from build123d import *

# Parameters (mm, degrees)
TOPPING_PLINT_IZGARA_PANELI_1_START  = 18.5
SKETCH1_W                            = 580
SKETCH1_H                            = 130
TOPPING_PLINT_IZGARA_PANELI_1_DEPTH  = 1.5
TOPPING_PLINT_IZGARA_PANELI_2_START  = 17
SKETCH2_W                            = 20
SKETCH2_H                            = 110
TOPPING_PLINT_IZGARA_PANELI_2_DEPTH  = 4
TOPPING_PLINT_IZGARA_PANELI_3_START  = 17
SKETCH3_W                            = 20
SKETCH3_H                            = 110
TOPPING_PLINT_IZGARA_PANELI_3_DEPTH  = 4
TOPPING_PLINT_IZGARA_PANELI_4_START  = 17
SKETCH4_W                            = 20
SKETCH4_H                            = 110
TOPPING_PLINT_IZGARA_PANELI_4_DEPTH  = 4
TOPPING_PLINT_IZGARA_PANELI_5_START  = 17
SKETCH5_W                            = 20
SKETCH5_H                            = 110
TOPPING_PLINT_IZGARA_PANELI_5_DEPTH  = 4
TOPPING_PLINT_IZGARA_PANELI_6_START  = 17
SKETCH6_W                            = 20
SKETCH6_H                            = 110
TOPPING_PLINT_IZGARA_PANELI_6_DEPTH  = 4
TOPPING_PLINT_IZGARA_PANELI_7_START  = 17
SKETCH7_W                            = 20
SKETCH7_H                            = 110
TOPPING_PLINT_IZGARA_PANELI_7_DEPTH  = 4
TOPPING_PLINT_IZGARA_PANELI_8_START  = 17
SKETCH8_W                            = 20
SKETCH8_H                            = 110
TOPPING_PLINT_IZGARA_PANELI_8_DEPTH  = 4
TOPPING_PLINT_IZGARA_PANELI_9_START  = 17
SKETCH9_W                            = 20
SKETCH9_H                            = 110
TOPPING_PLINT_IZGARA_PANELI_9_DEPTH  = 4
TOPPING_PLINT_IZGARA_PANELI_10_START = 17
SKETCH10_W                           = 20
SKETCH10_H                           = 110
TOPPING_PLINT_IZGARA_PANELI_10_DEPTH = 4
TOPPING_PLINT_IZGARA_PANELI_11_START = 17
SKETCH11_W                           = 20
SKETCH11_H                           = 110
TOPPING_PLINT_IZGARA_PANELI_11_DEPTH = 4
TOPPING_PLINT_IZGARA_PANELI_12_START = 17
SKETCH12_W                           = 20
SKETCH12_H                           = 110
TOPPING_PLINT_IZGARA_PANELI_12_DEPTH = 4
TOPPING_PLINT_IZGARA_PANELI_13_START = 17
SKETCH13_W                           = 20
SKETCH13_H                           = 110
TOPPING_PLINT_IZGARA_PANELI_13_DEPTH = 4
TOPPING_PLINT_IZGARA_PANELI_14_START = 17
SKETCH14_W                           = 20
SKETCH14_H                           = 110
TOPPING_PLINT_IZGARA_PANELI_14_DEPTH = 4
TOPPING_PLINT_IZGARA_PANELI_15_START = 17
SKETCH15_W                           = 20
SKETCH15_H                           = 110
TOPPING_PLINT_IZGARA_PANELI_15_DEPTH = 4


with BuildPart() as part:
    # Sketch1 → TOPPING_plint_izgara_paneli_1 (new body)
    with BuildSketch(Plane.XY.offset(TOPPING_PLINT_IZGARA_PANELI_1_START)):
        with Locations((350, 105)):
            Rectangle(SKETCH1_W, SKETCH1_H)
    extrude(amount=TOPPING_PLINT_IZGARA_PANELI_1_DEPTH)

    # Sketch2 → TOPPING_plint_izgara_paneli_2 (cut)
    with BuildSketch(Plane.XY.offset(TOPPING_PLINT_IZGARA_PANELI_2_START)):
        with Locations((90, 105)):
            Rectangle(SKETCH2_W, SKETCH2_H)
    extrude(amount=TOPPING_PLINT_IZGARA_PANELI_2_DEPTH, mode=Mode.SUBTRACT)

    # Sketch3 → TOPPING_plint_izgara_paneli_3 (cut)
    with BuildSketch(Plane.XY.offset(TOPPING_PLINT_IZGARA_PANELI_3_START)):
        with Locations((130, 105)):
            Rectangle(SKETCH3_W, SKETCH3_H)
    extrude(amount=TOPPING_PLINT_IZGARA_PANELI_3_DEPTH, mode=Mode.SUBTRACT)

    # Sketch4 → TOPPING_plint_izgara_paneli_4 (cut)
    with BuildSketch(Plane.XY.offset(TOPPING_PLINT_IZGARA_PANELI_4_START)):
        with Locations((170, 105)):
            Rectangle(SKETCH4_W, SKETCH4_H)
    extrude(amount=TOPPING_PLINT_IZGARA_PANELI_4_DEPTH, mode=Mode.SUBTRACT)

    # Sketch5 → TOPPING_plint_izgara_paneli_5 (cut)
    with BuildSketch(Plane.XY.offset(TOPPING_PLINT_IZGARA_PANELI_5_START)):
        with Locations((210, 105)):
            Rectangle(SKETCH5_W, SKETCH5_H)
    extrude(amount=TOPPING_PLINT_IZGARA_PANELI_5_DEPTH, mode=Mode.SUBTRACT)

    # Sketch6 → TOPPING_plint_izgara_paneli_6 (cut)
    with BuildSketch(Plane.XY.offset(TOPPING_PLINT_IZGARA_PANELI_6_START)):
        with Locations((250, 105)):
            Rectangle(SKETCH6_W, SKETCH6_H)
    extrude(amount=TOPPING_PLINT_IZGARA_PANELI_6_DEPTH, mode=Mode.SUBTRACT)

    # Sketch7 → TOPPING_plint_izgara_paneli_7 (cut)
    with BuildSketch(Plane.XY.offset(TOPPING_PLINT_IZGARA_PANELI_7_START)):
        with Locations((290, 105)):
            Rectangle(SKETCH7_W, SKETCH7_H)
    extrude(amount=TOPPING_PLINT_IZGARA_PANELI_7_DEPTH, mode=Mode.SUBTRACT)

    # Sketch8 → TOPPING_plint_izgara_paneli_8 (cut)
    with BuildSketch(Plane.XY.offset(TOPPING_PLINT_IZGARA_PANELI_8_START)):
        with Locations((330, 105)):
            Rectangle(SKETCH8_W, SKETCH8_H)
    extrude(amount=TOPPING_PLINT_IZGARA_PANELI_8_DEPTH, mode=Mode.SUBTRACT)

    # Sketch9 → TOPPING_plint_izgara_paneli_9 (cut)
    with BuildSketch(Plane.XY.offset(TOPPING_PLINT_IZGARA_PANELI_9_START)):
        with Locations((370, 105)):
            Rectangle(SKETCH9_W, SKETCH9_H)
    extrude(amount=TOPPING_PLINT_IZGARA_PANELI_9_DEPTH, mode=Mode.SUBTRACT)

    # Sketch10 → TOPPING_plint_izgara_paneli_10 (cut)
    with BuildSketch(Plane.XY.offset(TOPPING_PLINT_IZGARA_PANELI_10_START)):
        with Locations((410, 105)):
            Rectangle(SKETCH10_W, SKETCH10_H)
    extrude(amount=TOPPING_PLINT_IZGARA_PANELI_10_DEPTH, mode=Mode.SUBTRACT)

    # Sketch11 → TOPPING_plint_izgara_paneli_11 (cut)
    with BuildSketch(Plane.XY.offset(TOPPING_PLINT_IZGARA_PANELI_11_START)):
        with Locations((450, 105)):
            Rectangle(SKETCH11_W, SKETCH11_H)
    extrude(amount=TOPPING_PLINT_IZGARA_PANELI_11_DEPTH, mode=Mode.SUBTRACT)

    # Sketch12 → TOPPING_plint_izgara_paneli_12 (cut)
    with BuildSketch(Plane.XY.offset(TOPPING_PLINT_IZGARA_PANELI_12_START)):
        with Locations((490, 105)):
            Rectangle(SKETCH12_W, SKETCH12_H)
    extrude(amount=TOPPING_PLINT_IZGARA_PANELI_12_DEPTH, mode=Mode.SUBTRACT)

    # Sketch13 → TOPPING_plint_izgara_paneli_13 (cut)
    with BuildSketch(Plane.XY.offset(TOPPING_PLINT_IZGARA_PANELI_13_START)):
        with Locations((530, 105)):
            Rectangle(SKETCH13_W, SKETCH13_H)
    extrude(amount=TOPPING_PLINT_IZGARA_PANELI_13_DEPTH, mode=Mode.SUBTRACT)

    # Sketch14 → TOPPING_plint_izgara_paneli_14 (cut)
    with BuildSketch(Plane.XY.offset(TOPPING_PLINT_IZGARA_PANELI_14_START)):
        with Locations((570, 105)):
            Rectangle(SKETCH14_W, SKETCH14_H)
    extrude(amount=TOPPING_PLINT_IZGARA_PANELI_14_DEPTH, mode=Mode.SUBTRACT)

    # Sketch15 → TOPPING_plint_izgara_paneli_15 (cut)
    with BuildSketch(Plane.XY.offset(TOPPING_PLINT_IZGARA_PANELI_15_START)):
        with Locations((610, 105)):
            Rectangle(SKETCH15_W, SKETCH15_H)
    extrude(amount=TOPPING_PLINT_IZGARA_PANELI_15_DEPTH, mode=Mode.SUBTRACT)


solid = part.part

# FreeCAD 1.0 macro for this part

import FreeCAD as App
import Part
import Sketcher

V = App.Vector

doc = App.newDocument("Part")
params = doc.addObject("Spreadsheet::Sheet", "Params")
for row, (alias, value) in enumerate([
    ("sketch1_width", "580 mm"),
    ("sketch1_height", "130 mm"),
    ("pad1_length", "1.5 mm"),
    ("sketch2_width", "20 mm"),
    ("sketch2_height", "110 mm"),
    ("pocket1_length", "4 mm"),
    ("sketch3_width", "20 mm"),
    ("sketch3_height", "110 mm"),
    ("pocket2_length", "4 mm"),
    ("sketch4_width", "20 mm"),
    ("sketch4_height", "110 mm"),
    ("pocket3_length", "4 mm"),
    ("sketch5_width", "20 mm"),
    ("sketch5_height", "110 mm"),
    ("pocket4_length", "4 mm"),
    ("sketch6_width", "20 mm"),
    ("sketch6_height", "110 mm"),
    ("pocket5_length", "4 mm"),
    ("sketch7_width", "20 mm"),
    ("sketch7_height", "110 mm"),
    ("pocket6_length", "4 mm"),
    ("sketch8_width", "20 mm"),
    ("sketch8_height", "110 mm"),
    ("pocket7_length", "4 mm"),
    ("sketch9_width", "20 mm"),
    ("sketch9_height", "110 mm"),
    ("pocket8_length", "4 mm"),
    ("sketch10_width", "20 mm"),
    ("sketch10_height", "110 mm"),
    ("pocket9_length", "4 mm"),
    ("sketch11_width", "20 mm"),
    ("sketch11_height", "110 mm"),
    ("pocket10_length", "4 mm"),
    ("sketch12_width", "20 mm"),
    ("sketch12_height", "110 mm"),
    ("pocket11_length", "4 mm"),
    ("sketch13_width", "20 mm"),
    ("sketch13_height", "110 mm"),
    ("pocket12_length", "4 mm"),
    ("sketch14_width", "20 mm"),
    ("sketch14_height", "110 mm"),
    ("pocket13_length", "4 mm"),
    ("sketch15_width", "20 mm"),
    ("sketch15_height", "110 mm"),
    ("pocket14_length", "4 mm"),
], start=1):
    params.set(f"A{row}", alias)
    params.set(f"B{row}", "=" + value)
    params.setAlias(f"B{row}", alias)

body = doc.addObject("PartDesign::Body", "Body")

# Sketch on XY plane
sketch1 = body.newObject("Sketcher::SketchObject", "Sketch")
sketch1.AttachmentSupport = (doc.getObject("XY_Plane"), [""])
sketch1.MapMode = "FlatFace"
sketch1.AttachmentOffset = App.Placement(V(0, 0, 18.5), App.Rotation())
sketch1.addGeometry([
    Part.LineSegment(V(60, 170, 0), V(60, 40, 0)),
    Part.LineSegment(V(60, 40, 0), V(640, 40, 0)),
    Part.LineSegment(V(640, 40, 0), V(640, 170, 0)),
    Part.LineSegment(V(640, 170, 0), V(60, 170, 0)),
], False)
sketch1.addConstraint([
    Sketcher.Constraint("Coincident", 0, 2, 1, 1),
    Sketcher.Constraint("Coincident", 1, 2, 2, 1),
    Sketcher.Constraint("Coincident", 2, 2, 3, 1),
    Sketcher.Constraint("Coincident", 3, 2, 0, 1),
    Sketcher.Constraint("Vertical", 0),
    Sketcher.Constraint("Horizontal", 1),
    Sketcher.Constraint("Vertical", 2),
    Sketcher.Constraint("Horizontal", 3),
    Sketcher.Constraint("DistanceX", 1, 1, 1, 2, 580.0),
    Sketcher.Constraint("DistanceY", 0, 2, 0, 1, 130.0),
    Sketcher.Constraint("DistanceX", -1, 1, 0, 2, 60.0),
    Sketcher.Constraint("DistanceY", -1, 1, 0, 2, 40.0),
])
sketch1.setExpression("Constraints[8]", "Params.sketch1_width")
sketch1.setExpression("Constraints[9]", "Params.sketch1_height")
pad1 = body.newObject("PartDesign::Pad", "Pad")
pad1.Profile = sketch1
pad1.setExpression("Length", "Params.pad1_length")

# Sketch on XY plane
sketch2 = body.newObject("Sketcher::SketchObject", "Sketch001")
sketch2.AttachmentSupport = (doc.getObject("XY_Plane"), [""])
sketch2.MapMode = "FlatFace"
sketch2.AttachmentOffset = App.Placement(V(0, 0, 17), App.Rotation())
sketch2.addGeometry([
    Part.LineSegment(V(80, 160, 0), V(80, 50, 0)),
    Part.LineSegment(V(80, 50, 0), V(100, 50, 0)),
    Part.LineSegment(V(100, 50, 0), V(100, 160, 0)),
    Part.LineSegment(V(100, 160, 0), V(80, 160, 0)),
], False)
sketch2.addConstraint([
    Sketcher.Constraint("Coincident", 0, 2, 1, 1),
    Sketcher.Constraint("Coincident", 1, 2, 2, 1),
    Sketcher.Constraint("Coincident", 2, 2, 3, 1),
    Sketcher.Constraint("Coincident", 3, 2, 0, 1),
    Sketcher.Constraint("Vertical", 0),
    Sketcher.Constraint("Horizontal", 1),
    Sketcher.Constraint("Vertical", 2),
    Sketcher.Constraint("Horizontal", 3),
    Sketcher.Constraint("DistanceX", 1, 1, 1, 2, 20.0),
    Sketcher.Constraint("DistanceY", 0, 2, 0, 1, 110.0),
    Sketcher.Constraint("DistanceX", -1, 1, 0, 2, 80.0),
    Sketcher.Constraint("DistanceY", -1, 1, 0, 2, 50.0),
])
sketch2.setExpression("Constraints[8]", "Params.sketch2_width")
sketch2.setExpression("Constraints[9]", "Params.sketch2_height")
pocket1 = body.newObject("PartDesign::Pocket", "Pocket")
pocket1.Profile = sketch2
pocket1.setExpression("Length", "Params.pocket1_length")
pocket1.Reversed = True

# Sketch on XY plane
sketch3 = body.newObject("Sketcher::SketchObject", "Sketch002")
sketch3.AttachmentSupport = (doc.getObject("XY_Plane"), [""])
sketch3.MapMode = "FlatFace"
sketch3.AttachmentOffset = App.Placement(V(0, 0, 17), App.Rotation())
sketch3.addGeometry([
    Part.LineSegment(V(120, 160, 0), V(120, 50, 0)),
    Part.LineSegment(V(120, 50, 0), V(140, 50, 0)),
    Part.LineSegment(V(140, 50, 0), V(140, 160, 0)),
    Part.LineSegment(V(140, 160, 0), V(120, 160, 0)),
], False)
sketch3.addConstraint([
    Sketcher.Constraint("Coincident", 0, 2, 1, 1),
    Sketcher.Constraint("Coincident", 1, 2, 2, 1),
    Sketcher.Constraint("Coincident", 2, 2, 3, 1),
    Sketcher.Constraint("Coincident", 3, 2, 0, 1),
    Sketcher.Constraint("Vertical", 0),
    Sketcher.Constraint("Horizontal", 1),
    Sketcher.Constraint("Vertical", 2),
    Sketcher.Constraint("Horizontal", 3),
    Sketcher.Constraint("DistanceX", 1, 1, 1, 2, 20.0),
    Sketcher.Constraint("DistanceY", 0, 2, 0, 1, 110.0),
    Sketcher.Constraint("DistanceX", -1, 1, 0, 2, 120.0),
    Sketcher.Constraint("DistanceY", -1, 1, 0, 2, 50.0),
])
sketch3.setExpression("Constraints[8]", "Params.sketch3_width")
sketch3.setExpression("Constraints[9]", "Params.sketch3_height")
pocket2 = body.newObject("PartDesign::Pocket", "Pocket001")
pocket2.Profile = sketch3
pocket2.setExpression("Length", "Params.pocket2_length")
pocket2.Reversed = True

# Sketch on XY plane
sketch4 = body.newObject("Sketcher::SketchObject", "Sketch003")
sketch4.AttachmentSupport = (doc.getObject("XY_Plane"), [""])
sketch4.MapMode = "FlatFace"
sketch4.AttachmentOffset = App.Placement(V(0, 0, 17), App.Rotation())
sketch4.addGeometry([
    Part.LineSegment(V(160, 160, 0), V(160, 50, 0)),
    Part.LineSegment(V(160, 50, 0), V(180, 50, 0)),
    Part.LineSegment(V(180, 50, 0), V(180, 160, 0)),
    Part.LineSegment(V(180, 160, 0), V(160, 160, 0)),
], False)
sketch4.addConstraint([
    Sketcher.Constraint("Coincident", 0, 2, 1, 1),
    Sketcher.Constraint("Coincident", 1, 2, 2, 1),
    Sketcher.Constraint("Coincident", 2, 2, 3, 1),
    Sketcher.Constraint("Coincident", 3, 2, 0, 1),
    Sketcher.Constraint("Vertical", 0),
    Sketcher.Constraint("Horizontal", 1),
    Sketcher.Constraint("Vertical", 2),
    Sketcher.Constraint("Horizontal", 3),
    Sketcher.Constraint("DistanceX", 1, 1, 1, 2, 20.0),
    Sketcher.Constraint("DistanceY", 0, 2, 0, 1, 110.0),
    Sketcher.Constraint("DistanceX", -1, 1, 0, 2, 160.0),
    Sketcher.Constraint("DistanceY", -1, 1, 0, 2, 50.0),
])
sketch4.setExpression("Constraints[8]", "Params.sketch4_width")
sketch4.setExpression("Constraints[9]", "Params.sketch4_height")
pocket3 = body.newObject("PartDesign::Pocket", "Pocket002")
pocket3.Profile = sketch4
pocket3.setExpression("Length", "Params.pocket3_length")
pocket3.Reversed = True

# Sketch on XY plane
sketch5 = body.newObject("Sketcher::SketchObject", "Sketch004")
sketch5.AttachmentSupport = (doc.getObject("XY_Plane"), [""])
sketch5.MapMode = "FlatFace"
sketch5.AttachmentOffset = App.Placement(V(0, 0, 17), App.Rotation())
sketch5.addGeometry([
    Part.LineSegment(V(200, 160, 0), V(200, 50, 0)),
    Part.LineSegment(V(200, 50, 0), V(220, 50, 0)),
    Part.LineSegment(V(220, 50, 0), V(220, 160, 0)),
    Part.LineSegment(V(220, 160, 0), V(200, 160, 0)),
], False)
sketch5.addConstraint([
    Sketcher.Constraint("Coincident", 0, 2, 1, 1),
    Sketcher.Constraint("Coincident", 1, 2, 2, 1),
    Sketcher.Constraint("Coincident", 2, 2, 3, 1),
    Sketcher.Constraint("Coincident", 3, 2, 0, 1),
    Sketcher.Constraint("Vertical", 0),
    Sketcher.Constraint("Horizontal", 1),
    Sketcher.Constraint("Vertical", 2),
    Sketcher.Constraint("Horizontal", 3),
    Sketcher.Constraint("DistanceX", 1, 1, 1, 2, 20.0),
    Sketcher.Constraint("DistanceY", 0, 2, 0, 1, 110.0),
    Sketcher.Constraint("DistanceX", -1, 1, 0, 2, 200.0),
    Sketcher.Constraint("DistanceY", -1, 1, 0, 2, 50.0),
])
sketch5.setExpression("Constraints[8]", "Params.sketch5_width")
sketch5.setExpression("Constraints[9]", "Params.sketch5_height")
pocket4 = body.newObject("PartDesign::Pocket", "Pocket003")
pocket4.Profile = sketch5
pocket4.setExpression("Length", "Params.pocket4_length")
pocket4.Reversed = True

# Sketch on XY plane
sketch6 = body.newObject("Sketcher::SketchObject", "Sketch005")
sketch6.AttachmentSupport = (doc.getObject("XY_Plane"), [""])
sketch6.MapMode = "FlatFace"
sketch6.AttachmentOffset = App.Placement(V(0, 0, 17), App.Rotation())
sketch6.addGeometry([
    Part.LineSegment(V(240, 160, 0), V(240, 50, 0)),
    Part.LineSegment(V(240, 50, 0), V(260, 50, 0)),
    Part.LineSegment(V(260, 50, 0), V(260, 160, 0)),
    Part.LineSegment(V(260, 160, 0), V(240, 160, 0)),
], False)
sketch6.addConstraint([
    Sketcher.Constraint("Coincident", 0, 2, 1, 1),
    Sketcher.Constraint("Coincident", 1, 2, 2, 1),
    Sketcher.Constraint("Coincident", 2, 2, 3, 1),
    Sketcher.Constraint("Coincident", 3, 2, 0, 1),
    Sketcher.Constraint("Vertical", 0),
    Sketcher.Constraint("Horizontal", 1),
    Sketcher.Constraint("Vertical", 2),
    Sketcher.Constraint("Horizontal", 3),
    Sketcher.Constraint("DistanceX", 1, 1, 1, 2, 20.0),
    Sketcher.Constraint("DistanceY", 0, 2, 0, 1, 110.0),
    Sketcher.Constraint("DistanceX", -1, 1, 0, 2, 240.0),
    Sketcher.Constraint("DistanceY", -1, 1, 0, 2, 50.0),
])
sketch6.setExpression("Constraints[8]", "Params.sketch6_width")
sketch6.setExpression("Constraints[9]", "Params.sketch6_height")
pocket5 = body.newObject("PartDesign::Pocket", "Pocket004")
pocket5.Profile = sketch6
pocket5.setExpression("Length", "Params.pocket5_length")
pocket5.Reversed = True

# Sketch on XY plane
sketch7 = body.newObject("Sketcher::SketchObject", "Sketch006")
sketch7.AttachmentSupport = (doc.getObject("XY_Plane"), [""])
sketch7.MapMode = "FlatFace"
sketch7.AttachmentOffset = App.Placement(V(0, 0, 17), App.Rotation())
sketch7.addGeometry([
    Part.LineSegment(V(280, 160, 0), V(280, 50, 0)),
    Part.LineSegment(V(280, 50, 0), V(300, 50, 0)),
    Part.LineSegment(V(300, 50, 0), V(300, 160, 0)),
    Part.LineSegment(V(300, 160, 0), V(280, 160, 0)),
], False)
sketch7.addConstraint([
    Sketcher.Constraint("Coincident", 0, 2, 1, 1),
    Sketcher.Constraint("Coincident", 1, 2, 2, 1),
    Sketcher.Constraint("Coincident", 2, 2, 3, 1),
    Sketcher.Constraint("Coincident", 3, 2, 0, 1),
    Sketcher.Constraint("Vertical", 0),
    Sketcher.Constraint("Horizontal", 1),
    Sketcher.Constraint("Vertical", 2),
    Sketcher.Constraint("Horizontal", 3),
    Sketcher.Constraint("DistanceX", 1, 1, 1, 2, 20.0),
    Sketcher.Constraint("DistanceY", 0, 2, 0, 1, 110.0),
    Sketcher.Constraint("DistanceX", -1, 1, 0, 2, 280.0),
    Sketcher.Constraint("DistanceY", -1, 1, 0, 2, 50.0),
])
sketch7.setExpression("Constraints[8]", "Params.sketch7_width")
sketch7.setExpression("Constraints[9]", "Params.sketch7_height")
pocket6 = body.newObject("PartDesign::Pocket", "Pocket005")
pocket6.Profile = sketch7
pocket6.setExpression("Length", "Params.pocket6_length")
pocket6.Reversed = True

# Sketch on XY plane
sketch8 = body.newObject("Sketcher::SketchObject", "Sketch007")
sketch8.AttachmentSupport = (doc.getObject("XY_Plane"), [""])
sketch8.MapMode = "FlatFace"
sketch8.AttachmentOffset = App.Placement(V(0, 0, 17), App.Rotation())
sketch8.addGeometry([
    Part.LineSegment(V(320, 160, 0), V(320, 50, 0)),
    Part.LineSegment(V(320, 50, 0), V(340, 50, 0)),
    Part.LineSegment(V(340, 50, 0), V(340, 160, 0)),
    Part.LineSegment(V(340, 160, 0), V(320, 160, 0)),
], False)
sketch8.addConstraint([
    Sketcher.Constraint("Coincident", 0, 2, 1, 1),
    Sketcher.Constraint("Coincident", 1, 2, 2, 1),
    Sketcher.Constraint("Coincident", 2, 2, 3, 1),
    Sketcher.Constraint("Coincident", 3, 2, 0, 1),
    Sketcher.Constraint("Vertical", 0),
    Sketcher.Constraint("Horizontal", 1),
    Sketcher.Constraint("Vertical", 2),
    Sketcher.Constraint("Horizontal", 3),
    Sketcher.Constraint("DistanceX", 1, 1, 1, 2, 20.0),
    Sketcher.Constraint("DistanceY", 0, 2, 0, 1, 110.0),
    Sketcher.Constraint("DistanceX", -1, 1, 0, 2, 320.0),
    Sketcher.Constraint("DistanceY", -1, 1, 0, 2, 50.0),
])
sketch8.setExpression("Constraints[8]", "Params.sketch8_width")
sketch8.setExpression("Constraints[9]", "Params.sketch8_height")
pocket7 = body.newObject("PartDesign::Pocket", "Pocket006")
pocket7.Profile = sketch8
pocket7.setExpression("Length", "Params.pocket7_length")
pocket7.Reversed = True

# Sketch on XY plane
sketch9 = body.newObject("Sketcher::SketchObject", "Sketch008")
sketch9.AttachmentSupport = (doc.getObject("XY_Plane"), [""])
sketch9.MapMode = "FlatFace"
sketch9.AttachmentOffset = App.Placement(V(0, 0, 17), App.Rotation())
sketch9.addGeometry([
    Part.LineSegment(V(360, 160, 0), V(360, 50, 0)),
    Part.LineSegment(V(360, 50, 0), V(380, 50, 0)),
    Part.LineSegment(V(380, 50, 0), V(380, 160, 0)),
    Part.LineSegment(V(380, 160, 0), V(360, 160, 0)),
], False)
sketch9.addConstraint([
    Sketcher.Constraint("Coincident", 0, 2, 1, 1),
    Sketcher.Constraint("Coincident", 1, 2, 2, 1),
    Sketcher.Constraint("Coincident", 2, 2, 3, 1),
    Sketcher.Constraint("Coincident", 3, 2, 0, 1),
    Sketcher.Constraint("Vertical", 0),
    Sketcher.Constraint("Horizontal", 1),
    Sketcher.Constraint("Vertical", 2),
    Sketcher.Constraint("Horizontal", 3),
    Sketcher.Constraint("DistanceX", 1, 1, 1, 2, 20.0),
    Sketcher.Constraint("DistanceY", 0, 2, 0, 1, 110.0),
    Sketcher.Constraint("DistanceX", -1, 1, 0, 2, 360.0),
    Sketcher.Constraint("DistanceY", -1, 1, 0, 2, 50.0),
])
sketch9.setExpression("Constraints[8]", "Params.sketch9_width")
sketch9.setExpression("Constraints[9]", "Params.sketch9_height")
pocket8 = body.newObject("PartDesign::Pocket", "Pocket007")
pocket8.Profile = sketch9
pocket8.setExpression("Length", "Params.pocket8_length")
pocket8.Reversed = True

# Sketch on XY plane
sketch10 = body.newObject("Sketcher::SketchObject", "Sketch009")
sketch10.AttachmentSupport = (doc.getObject("XY_Plane"), [""])
sketch10.MapMode = "FlatFace"
sketch10.AttachmentOffset = App.Placement(V(0, 0, 17), App.Rotation())
sketch10.addGeometry([
    Part.LineSegment(V(400, 160, 0), V(400, 50, 0)),
    Part.LineSegment(V(400, 50, 0), V(420, 50, 0)),
    Part.LineSegment(V(420, 50, 0), V(420, 160, 0)),
    Part.LineSegment(V(420, 160, 0), V(400, 160, 0)),
], False)
sketch10.addConstraint([
    Sketcher.Constraint("Coincident", 0, 2, 1, 1),
    Sketcher.Constraint("Coincident", 1, 2, 2, 1),
    Sketcher.Constraint("Coincident", 2, 2, 3, 1),
    Sketcher.Constraint("Coincident", 3, 2, 0, 1),
    Sketcher.Constraint("Vertical", 0),
    Sketcher.Constraint("Horizontal", 1),
    Sketcher.Constraint("Vertical", 2),
    Sketcher.Constraint("Horizontal", 3),
    Sketcher.Constraint("DistanceX", 1, 1, 1, 2, 20.0),
    Sketcher.Constraint("DistanceY", 0, 2, 0, 1, 110.0),
    Sketcher.Constraint("DistanceX", -1, 1, 0, 2, 400.0),
    Sketcher.Constraint("DistanceY", -1, 1, 0, 2, 50.0),
])
sketch10.setExpression("Constraints[8]", "Params.sketch10_width")
sketch10.setExpression("Constraints[9]", "Params.sketch10_height")
pocket9 = body.newObject("PartDesign::Pocket", "Pocket008")
pocket9.Profile = sketch10
pocket9.setExpression("Length", "Params.pocket9_length")
pocket9.Reversed = True

# Sketch on XY plane
sketch11 = body.newObject("Sketcher::SketchObject", "Sketch010")
sketch11.AttachmentSupport = (doc.getObject("XY_Plane"), [""])
sketch11.MapMode = "FlatFace"
sketch11.AttachmentOffset = App.Placement(V(0, 0, 17), App.Rotation())
sketch11.addGeometry([
    Part.LineSegment(V(440, 160, 0), V(440, 50, 0)),
    Part.LineSegment(V(440, 50, 0), V(460, 50, 0)),
    Part.LineSegment(V(460, 50, 0), V(460, 160, 0)),
    Part.LineSegment(V(460, 160, 0), V(440, 160, 0)),
], False)
sketch11.addConstraint([
    Sketcher.Constraint("Coincident", 0, 2, 1, 1),
    Sketcher.Constraint("Coincident", 1, 2, 2, 1),
    Sketcher.Constraint("Coincident", 2, 2, 3, 1),
    Sketcher.Constraint("Coincident", 3, 2, 0, 1),
    Sketcher.Constraint("Vertical", 0),
    Sketcher.Constraint("Horizontal", 1),
    Sketcher.Constraint("Vertical", 2),
    Sketcher.Constraint("Horizontal", 3),
    Sketcher.Constraint("DistanceX", 1, 1, 1, 2, 20.0),
    Sketcher.Constraint("DistanceY", 0, 2, 0, 1, 110.0),
    Sketcher.Constraint("DistanceX", -1, 1, 0, 2, 440.0),
    Sketcher.Constraint("DistanceY", -1, 1, 0, 2, 50.0),
])
sketch11.setExpression("Constraints[8]", "Params.sketch11_width")
sketch11.setExpression("Constraints[9]", "Params.sketch11_height")
pocket10 = body.newObject("PartDesign::Pocket", "Pocket009")
pocket10.Profile = sketch11
pocket10.setExpression("Length", "Params.pocket10_length")
pocket10.Reversed = True

# Sketch on XY plane
sketch12 = body.newObject("Sketcher::SketchObject", "Sketch011")
sketch12.AttachmentSupport = (doc.getObject("XY_Plane"), [""])
sketch12.MapMode = "FlatFace"
sketch12.AttachmentOffset = App.Placement(V(0, 0, 17), App.Rotation())
sketch12.addGeometry([
    Part.LineSegment(V(480, 160, 0), V(480, 50, 0)),
    Part.LineSegment(V(480, 50, 0), V(500, 50, 0)),
    Part.LineSegment(V(500, 50, 0), V(500, 160, 0)),
    Part.LineSegment(V(500, 160, 0), V(480, 160, 0)),
], False)
sketch12.addConstraint([
    Sketcher.Constraint("Coincident", 0, 2, 1, 1),
    Sketcher.Constraint("Coincident", 1, 2, 2, 1),
    Sketcher.Constraint("Coincident", 2, 2, 3, 1),
    Sketcher.Constraint("Coincident", 3, 2, 0, 1),
    Sketcher.Constraint("Vertical", 0),
    Sketcher.Constraint("Horizontal", 1),
    Sketcher.Constraint("Vertical", 2),
    Sketcher.Constraint("Horizontal", 3),
    Sketcher.Constraint("DistanceX", 1, 1, 1, 2, 20.0),
    Sketcher.Constraint("DistanceY", 0, 2, 0, 1, 110.0),
    Sketcher.Constraint("DistanceX", -1, 1, 0, 2, 480.0),
    Sketcher.Constraint("DistanceY", -1, 1, 0, 2, 50.0),
])
sketch12.setExpression("Constraints[8]", "Params.sketch12_width")
sketch12.setExpression("Constraints[9]", "Params.sketch12_height")
pocket11 = body.newObject("PartDesign::Pocket", "Pocket010")
pocket11.Profile = sketch12
pocket11.setExpression("Length", "Params.pocket11_length")
pocket11.Reversed = True

# Sketch on XY plane
sketch13 = body.newObject("Sketcher::SketchObject", "Sketch012")
sketch13.AttachmentSupport = (doc.getObject("XY_Plane"), [""])
sketch13.MapMode = "FlatFace"
sketch13.AttachmentOffset = App.Placement(V(0, 0, 17), App.Rotation())
sketch13.addGeometry([
    Part.LineSegment(V(520, 160, 0), V(520, 50, 0)),
    Part.LineSegment(V(520, 50, 0), V(540, 50, 0)),
    Part.LineSegment(V(540, 50, 0), V(540, 160, 0)),
    Part.LineSegment(V(540, 160, 0), V(520, 160, 0)),
], False)
sketch13.addConstraint([
    Sketcher.Constraint("Coincident", 0, 2, 1, 1),
    Sketcher.Constraint("Coincident", 1, 2, 2, 1),
    Sketcher.Constraint("Coincident", 2, 2, 3, 1),
    Sketcher.Constraint("Coincident", 3, 2, 0, 1),
    Sketcher.Constraint("Vertical", 0),
    Sketcher.Constraint("Horizontal", 1),
    Sketcher.Constraint("Vertical", 2),
    Sketcher.Constraint("Horizontal", 3),
    Sketcher.Constraint("DistanceX", 1, 1, 1, 2, 20.0),
    Sketcher.Constraint("DistanceY", 0, 2, 0, 1, 110.0),
    Sketcher.Constraint("DistanceX", -1, 1, 0, 2, 520.0),
    Sketcher.Constraint("DistanceY", -1, 1, 0, 2, 50.0),
])
sketch13.setExpression("Constraints[8]", "Params.sketch13_width")
sketch13.setExpression("Constraints[9]", "Params.sketch13_height")
pocket12 = body.newObject("PartDesign::Pocket", "Pocket011")
pocket12.Profile = sketch13
pocket12.setExpression("Length", "Params.pocket12_length")
pocket12.Reversed = True

# Sketch on XY plane
sketch14 = body.newObject("Sketcher::SketchObject", "Sketch013")
sketch14.AttachmentSupport = (doc.getObject("XY_Plane"), [""])
sketch14.MapMode = "FlatFace"
sketch14.AttachmentOffset = App.Placement(V(0, 0, 17), App.Rotation())
sketch14.addGeometry([
    Part.LineSegment(V(560, 160, 0), V(560, 50, 0)),
    Part.LineSegment(V(560, 50, 0), V(580, 50, 0)),
    Part.LineSegment(V(580, 50, 0), V(580, 160, 0)),
    Part.LineSegment(V(580, 160, 0), V(560, 160, 0)),
], False)
sketch14.addConstraint([
    Sketcher.Constraint("Coincident", 0, 2, 1, 1),
    Sketcher.Constraint("Coincident", 1, 2, 2, 1),
    Sketcher.Constraint("Coincident", 2, 2, 3, 1),
    Sketcher.Constraint("Coincident", 3, 2, 0, 1),
    Sketcher.Constraint("Vertical", 0),
    Sketcher.Constraint("Horizontal", 1),
    Sketcher.Constraint("Vertical", 2),
    Sketcher.Constraint("Horizontal", 3),
    Sketcher.Constraint("DistanceX", 1, 1, 1, 2, 20.0),
    Sketcher.Constraint("DistanceY", 0, 2, 0, 1, 110.0),
    Sketcher.Constraint("DistanceX", -1, 1, 0, 2, 560.0),
    Sketcher.Constraint("DistanceY", -1, 1, 0, 2, 50.0),
])
sketch14.setExpression("Constraints[8]", "Params.sketch14_width")
sketch14.setExpression("Constraints[9]", "Params.sketch14_height")
pocket13 = body.newObject("PartDesign::Pocket", "Pocket012")
pocket13.Profile = sketch14
pocket13.setExpression("Length", "Params.pocket13_length")
pocket13.Reversed = True

# Sketch on XY plane
sketch15 = body.newObject("Sketcher::SketchObject", "Sketch014")
sketch15.AttachmentSupport = (doc.getObject("XY_Plane"), [""])
sketch15.MapMode = "FlatFace"
sketch15.AttachmentOffset = App.Placement(V(0, 0, 17), App.Rotation())
sketch15.addGeometry([
    Part.LineSegment(V(600, 160, 0), V(600, 50, 0)),
    Part.LineSegment(V(600, 50, 0), V(620, 50, 0)),
    Part.LineSegment(V(620, 50, 0), V(620, 160, 0)),
    Part.LineSegment(V(620, 160, 0), V(600, 160, 0)),
], False)
sketch15.addConstraint([
    Sketcher.Constraint("Coincident", 0, 2, 1, 1),
    Sketcher.Constraint("Coincident", 1, 2, 2, 1),
    Sketcher.Constraint("Coincident", 2, 2, 3, 1),
    Sketcher.Constraint("Coincident", 3, 2, 0, 1),
    Sketcher.Constraint("Vertical", 0),
    Sketcher.Constraint("Horizontal", 1),
    Sketcher.Constraint("Vertical", 2),
    Sketcher.Constraint("Horizontal", 3),
    Sketcher.Constraint("DistanceX", 1, 1, 1, 2, 20.0),
    Sketcher.Constraint("DistanceY", 0, 2, 0, 1, 110.0),
    Sketcher.Constraint("DistanceX", -1, 1, 0, 2, 600.0),
    Sketcher.Constraint("DistanceY", -1, 1, 0, 2, 50.0),
])
sketch15.setExpression("Constraints[8]", "Params.sketch15_width")
sketch15.setExpression("Constraints[9]", "Params.sketch15_height")
pocket14 = body.newObject("PartDesign::Pocket", "Pocket013")
pocket14.Profile = sketch15
pocket14.setExpression("Length", "Params.pocket14_length")
pocket14.Reversed = True

doc.recompute()
